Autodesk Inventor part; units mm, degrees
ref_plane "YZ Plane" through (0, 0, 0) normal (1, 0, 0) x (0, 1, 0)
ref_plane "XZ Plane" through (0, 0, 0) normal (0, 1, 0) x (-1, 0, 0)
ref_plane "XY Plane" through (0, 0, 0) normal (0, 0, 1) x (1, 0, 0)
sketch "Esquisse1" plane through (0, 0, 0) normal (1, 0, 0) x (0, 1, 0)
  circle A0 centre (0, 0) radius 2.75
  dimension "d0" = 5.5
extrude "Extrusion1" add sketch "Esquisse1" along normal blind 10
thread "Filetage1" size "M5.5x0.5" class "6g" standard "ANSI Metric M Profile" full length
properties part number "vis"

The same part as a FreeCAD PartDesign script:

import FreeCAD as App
import Part
import Sketcher
Q = App.Units.Quantity

doc = App.newDocument("Part")
body = doc.addObject("PartDesign::Body", "Body")

# Sketch on YZ plane
sketch1 = doc.addObject("Sketcher::SketchObject", "Sketch")
body.addObject(sketch1)
sketch1.AttachmentSupport = (doc.YZ_Plane, [""])
sketch1.MapMode = "FlatFace"
sketch1.addGeometry(Part.Circle(App.Vector(0, 0, 0), App.Vector(0, 0, 1), 2.8), False)
sketch1.addConstraint(Sketcher.Constraint("Coincident", 0, 3, -1, 1))
sketch1.addConstraint(Sketcher.Constraint("Diameter", 0, Q("5.5 mm")))
pad1 = doc.addObject("PartDesign::Pad", "Pad")
body.addObject(pad1)
pad1.Profile = sketch1
pad1.Length = 10

doc.recompute()
